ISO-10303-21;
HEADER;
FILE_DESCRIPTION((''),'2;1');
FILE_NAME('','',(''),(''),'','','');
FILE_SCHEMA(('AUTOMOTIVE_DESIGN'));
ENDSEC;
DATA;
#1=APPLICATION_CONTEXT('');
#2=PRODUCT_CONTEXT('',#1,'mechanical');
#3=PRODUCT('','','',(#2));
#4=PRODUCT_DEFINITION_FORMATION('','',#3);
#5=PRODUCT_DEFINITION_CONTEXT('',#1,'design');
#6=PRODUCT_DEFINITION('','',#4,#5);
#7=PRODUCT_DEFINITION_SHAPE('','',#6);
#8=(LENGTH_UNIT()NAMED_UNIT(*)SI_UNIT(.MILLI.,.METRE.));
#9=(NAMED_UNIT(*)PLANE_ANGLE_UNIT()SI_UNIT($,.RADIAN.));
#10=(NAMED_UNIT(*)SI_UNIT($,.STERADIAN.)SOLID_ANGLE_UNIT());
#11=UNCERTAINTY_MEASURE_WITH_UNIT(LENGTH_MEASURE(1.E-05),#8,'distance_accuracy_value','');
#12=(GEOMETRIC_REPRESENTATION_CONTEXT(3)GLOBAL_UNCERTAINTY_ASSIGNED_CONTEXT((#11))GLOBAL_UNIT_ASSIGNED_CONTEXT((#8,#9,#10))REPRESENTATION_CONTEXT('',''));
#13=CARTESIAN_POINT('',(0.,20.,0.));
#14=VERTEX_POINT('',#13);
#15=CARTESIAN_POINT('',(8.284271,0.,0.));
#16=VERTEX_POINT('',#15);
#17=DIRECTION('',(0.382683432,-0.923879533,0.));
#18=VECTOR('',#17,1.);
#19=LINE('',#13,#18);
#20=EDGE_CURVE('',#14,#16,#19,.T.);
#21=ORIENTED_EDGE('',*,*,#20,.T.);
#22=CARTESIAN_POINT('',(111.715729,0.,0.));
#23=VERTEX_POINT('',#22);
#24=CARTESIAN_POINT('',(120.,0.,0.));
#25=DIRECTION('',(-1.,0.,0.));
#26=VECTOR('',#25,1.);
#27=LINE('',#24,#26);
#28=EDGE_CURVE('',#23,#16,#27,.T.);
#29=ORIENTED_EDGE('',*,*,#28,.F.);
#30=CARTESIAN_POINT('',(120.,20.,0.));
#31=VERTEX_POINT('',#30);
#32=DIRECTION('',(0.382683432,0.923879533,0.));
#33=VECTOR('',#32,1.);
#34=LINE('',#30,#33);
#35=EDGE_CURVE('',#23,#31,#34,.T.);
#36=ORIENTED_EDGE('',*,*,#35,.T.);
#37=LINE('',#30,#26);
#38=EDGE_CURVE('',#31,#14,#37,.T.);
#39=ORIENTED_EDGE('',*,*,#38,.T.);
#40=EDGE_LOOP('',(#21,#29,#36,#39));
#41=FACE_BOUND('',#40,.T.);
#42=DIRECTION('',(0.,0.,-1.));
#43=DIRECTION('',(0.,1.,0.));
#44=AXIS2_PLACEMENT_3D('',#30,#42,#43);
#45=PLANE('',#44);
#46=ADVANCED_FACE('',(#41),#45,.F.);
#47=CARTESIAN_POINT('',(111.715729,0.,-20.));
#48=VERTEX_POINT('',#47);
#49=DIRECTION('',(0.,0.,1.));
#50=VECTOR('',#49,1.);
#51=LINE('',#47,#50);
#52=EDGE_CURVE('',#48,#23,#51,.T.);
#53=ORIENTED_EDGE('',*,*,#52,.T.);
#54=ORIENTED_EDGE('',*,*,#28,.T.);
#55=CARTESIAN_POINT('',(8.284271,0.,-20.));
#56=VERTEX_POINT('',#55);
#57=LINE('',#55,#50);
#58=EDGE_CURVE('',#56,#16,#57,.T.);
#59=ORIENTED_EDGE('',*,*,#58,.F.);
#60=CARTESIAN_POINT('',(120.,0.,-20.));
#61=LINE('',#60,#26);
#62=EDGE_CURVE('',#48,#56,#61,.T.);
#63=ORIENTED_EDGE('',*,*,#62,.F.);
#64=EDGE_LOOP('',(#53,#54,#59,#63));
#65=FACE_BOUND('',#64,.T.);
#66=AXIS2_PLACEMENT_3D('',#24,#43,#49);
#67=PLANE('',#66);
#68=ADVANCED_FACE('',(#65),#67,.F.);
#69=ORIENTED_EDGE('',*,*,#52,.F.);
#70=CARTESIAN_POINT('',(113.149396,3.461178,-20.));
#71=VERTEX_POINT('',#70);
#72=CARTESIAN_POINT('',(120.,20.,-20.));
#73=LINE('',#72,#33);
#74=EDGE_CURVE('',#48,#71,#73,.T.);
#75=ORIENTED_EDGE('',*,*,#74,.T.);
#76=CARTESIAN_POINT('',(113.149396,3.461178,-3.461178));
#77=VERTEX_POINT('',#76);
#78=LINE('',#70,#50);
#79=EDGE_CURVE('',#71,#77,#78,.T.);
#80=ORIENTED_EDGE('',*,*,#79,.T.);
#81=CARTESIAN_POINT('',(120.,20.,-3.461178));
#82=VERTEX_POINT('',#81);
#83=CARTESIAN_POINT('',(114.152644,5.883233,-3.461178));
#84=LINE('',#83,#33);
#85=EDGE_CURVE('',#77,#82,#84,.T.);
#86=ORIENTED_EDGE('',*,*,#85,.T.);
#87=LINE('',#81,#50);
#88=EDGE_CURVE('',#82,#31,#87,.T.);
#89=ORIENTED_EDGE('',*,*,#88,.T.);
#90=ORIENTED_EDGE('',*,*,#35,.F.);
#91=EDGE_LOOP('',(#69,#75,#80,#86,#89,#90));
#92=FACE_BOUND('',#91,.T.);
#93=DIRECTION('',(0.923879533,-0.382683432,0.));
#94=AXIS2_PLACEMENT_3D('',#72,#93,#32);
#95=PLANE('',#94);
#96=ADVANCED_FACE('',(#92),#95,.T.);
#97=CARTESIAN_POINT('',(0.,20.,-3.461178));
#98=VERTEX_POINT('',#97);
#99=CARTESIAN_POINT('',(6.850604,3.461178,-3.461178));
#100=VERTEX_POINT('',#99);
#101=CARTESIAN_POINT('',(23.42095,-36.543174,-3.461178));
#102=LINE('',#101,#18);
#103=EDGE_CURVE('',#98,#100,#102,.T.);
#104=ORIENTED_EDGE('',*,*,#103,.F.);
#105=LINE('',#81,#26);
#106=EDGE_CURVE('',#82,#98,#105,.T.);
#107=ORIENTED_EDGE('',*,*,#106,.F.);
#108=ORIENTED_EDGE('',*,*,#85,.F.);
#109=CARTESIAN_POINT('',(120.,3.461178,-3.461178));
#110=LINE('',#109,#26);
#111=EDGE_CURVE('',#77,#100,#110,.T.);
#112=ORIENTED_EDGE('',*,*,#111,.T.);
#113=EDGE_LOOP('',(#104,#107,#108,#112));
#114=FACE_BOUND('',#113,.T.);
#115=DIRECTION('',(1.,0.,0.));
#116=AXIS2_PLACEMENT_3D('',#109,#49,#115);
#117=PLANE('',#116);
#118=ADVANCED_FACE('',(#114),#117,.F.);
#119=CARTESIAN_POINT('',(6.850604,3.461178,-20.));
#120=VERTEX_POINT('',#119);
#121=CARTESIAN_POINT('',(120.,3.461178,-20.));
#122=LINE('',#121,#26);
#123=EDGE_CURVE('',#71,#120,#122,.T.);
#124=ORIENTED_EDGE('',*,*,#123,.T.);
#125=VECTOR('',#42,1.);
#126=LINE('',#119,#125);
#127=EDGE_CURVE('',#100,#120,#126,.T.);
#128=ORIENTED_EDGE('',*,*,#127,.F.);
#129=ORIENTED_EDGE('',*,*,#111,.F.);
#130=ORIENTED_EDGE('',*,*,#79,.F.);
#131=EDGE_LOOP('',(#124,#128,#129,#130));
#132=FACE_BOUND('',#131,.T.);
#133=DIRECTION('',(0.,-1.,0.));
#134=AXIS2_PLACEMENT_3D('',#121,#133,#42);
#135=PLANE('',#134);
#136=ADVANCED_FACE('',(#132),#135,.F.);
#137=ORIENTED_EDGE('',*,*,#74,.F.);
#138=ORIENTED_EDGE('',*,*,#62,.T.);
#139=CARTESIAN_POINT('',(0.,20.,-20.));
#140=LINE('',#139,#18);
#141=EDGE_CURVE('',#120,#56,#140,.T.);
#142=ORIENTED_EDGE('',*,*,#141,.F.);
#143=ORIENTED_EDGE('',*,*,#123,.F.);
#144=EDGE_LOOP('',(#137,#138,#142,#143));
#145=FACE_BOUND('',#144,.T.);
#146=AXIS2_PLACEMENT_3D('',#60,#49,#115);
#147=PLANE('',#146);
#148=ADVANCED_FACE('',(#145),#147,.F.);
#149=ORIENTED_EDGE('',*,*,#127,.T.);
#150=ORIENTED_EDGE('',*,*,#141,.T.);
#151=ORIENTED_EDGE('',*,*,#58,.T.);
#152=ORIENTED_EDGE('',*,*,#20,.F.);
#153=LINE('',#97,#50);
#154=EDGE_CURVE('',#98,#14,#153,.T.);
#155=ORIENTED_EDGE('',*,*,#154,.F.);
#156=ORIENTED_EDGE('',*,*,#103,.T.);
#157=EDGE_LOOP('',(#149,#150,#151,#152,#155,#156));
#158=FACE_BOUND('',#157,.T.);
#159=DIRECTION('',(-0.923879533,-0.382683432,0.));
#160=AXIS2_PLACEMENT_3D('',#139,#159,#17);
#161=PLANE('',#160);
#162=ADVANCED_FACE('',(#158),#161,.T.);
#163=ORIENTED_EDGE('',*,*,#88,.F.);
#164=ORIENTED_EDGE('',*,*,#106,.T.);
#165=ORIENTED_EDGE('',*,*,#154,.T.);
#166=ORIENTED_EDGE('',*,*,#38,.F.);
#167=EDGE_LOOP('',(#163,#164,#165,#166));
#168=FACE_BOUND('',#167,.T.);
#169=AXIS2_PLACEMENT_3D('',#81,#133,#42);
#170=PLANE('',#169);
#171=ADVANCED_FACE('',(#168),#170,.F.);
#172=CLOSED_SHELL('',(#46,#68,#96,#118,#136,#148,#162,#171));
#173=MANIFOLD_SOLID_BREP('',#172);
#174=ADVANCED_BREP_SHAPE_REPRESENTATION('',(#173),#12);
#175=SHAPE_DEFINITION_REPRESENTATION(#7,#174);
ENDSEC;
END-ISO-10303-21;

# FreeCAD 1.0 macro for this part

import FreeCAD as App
import Part
import Sketcher
from FreeCAD import Vector
Q = App.Units.Quantity


def add_polygon(sketch, points):
    """Adds a closed chain of lines whose ends are joined by coincident constraints."""
    first, n = sketch.GeometryCount, len(points)
    for a, b in zip(points, points[1:] + points[:1]):
        sketch.addGeometry(Part.LineSegment(App.Vector(*a, 0), App.Vector(*b, 0)), False)
    for i in range(n):
        sketch.addConstraint(Sketcher.Constraint("Coincident", first + i, 2, first + (i + 1) % n, 1))

doc = App.newDocument("Part")
body = doc.addObject("PartDesign::Body", "Body")

# Sketch on YZ plane
sketch1 = body.newObject("Sketcher::SketchObject", "Sketch")
sketch1.AttachmentSupport = (doc.getObject("YZ_Plane"), [""])
sketch1.MapMode = "FlatFace"
add_polygon(sketch1, [(0, 0), (0, -20), (3.461178, -20), (3.461178, -3.461178), (20, -3.461178), (20, 0)])  # lines 0-5
sketch1.addConstraint([
    Sketcher.Constraint("Vertical", 0),
    Sketcher.Constraint("Horizontal", 1),
    Sketcher.Constraint("Vertical", 2),
    Sketcher.Constraint("Horizontal", 3),
    Sketcher.Constraint("Vertical", 4),
    Sketcher.Constraint("Horizontal", 5),
    Sketcher.Constraint("Coincident", 5, 2, -1, 1),
    Sketcher.Constraint("Equal", 5, 0),
    Sketcher.Constraint("Equal", 3, 2),
    Sketcher.Constraint("DistanceX", 5, 2, 5, 1, Q("20 mm")),
    Sketcher.Constraint("DistanceX", 1, 1, 1, 2, Q("3.461178 mm")),
])
pad1 = body.newObject("PartDesign::Pad", "Pad")
pad1.Profile = sketch1
pad1.Length = 120

# Sketch on XY plane
sketch2 = body.newObject("Sketcher::SketchObject", "Sketch001")
sketch2.AttachmentSupport = (doc.getObject("XY_Plane"), [""])
sketch2.MapMode = "FlatFace"
add_polygon(sketch2, [(120, 20), (120, 0), (111.715729, 0)])  # lines 0-2
add_polygon(sketch2, [(0, 0), (0, 20), (8.284271, 0)])  # lines 3-5
sketch2.addConstraint([
    Sketcher.Constraint("Vertical", 0),
    Sketcher.Constraint("Horizontal", 1),
    Sketcher.Constraint("Vertical", 3),
    Sketcher.Constraint("Horizontal", 5),
    Sketcher.Constraint("Coincident", 5, 2, -1, 1),
    Sketcher.Constraint("PointOnObject", 0, 2, -1),
    Sketcher.Constraint("Horizontal", 2, 2, 3, 2),
    Sketcher.Constraint("Equal", 1, 5),
    Sketcher.Constraint("DistanceY", 0, 2, 0, 1, Q("20 mm")),
    Sketcher.Constraint("DistanceX", -1, 1, 0, 2, Q("120 mm")),
    Sketcher.Constraint("Angle", 2, Q("67.5 deg")),
])
pocket1 = body.newObject("PartDesign::Pocket", "Pocket")
pocket1.Profile = sketch2
pocket1.Type = "ThroughAll"

doc.recompute()
